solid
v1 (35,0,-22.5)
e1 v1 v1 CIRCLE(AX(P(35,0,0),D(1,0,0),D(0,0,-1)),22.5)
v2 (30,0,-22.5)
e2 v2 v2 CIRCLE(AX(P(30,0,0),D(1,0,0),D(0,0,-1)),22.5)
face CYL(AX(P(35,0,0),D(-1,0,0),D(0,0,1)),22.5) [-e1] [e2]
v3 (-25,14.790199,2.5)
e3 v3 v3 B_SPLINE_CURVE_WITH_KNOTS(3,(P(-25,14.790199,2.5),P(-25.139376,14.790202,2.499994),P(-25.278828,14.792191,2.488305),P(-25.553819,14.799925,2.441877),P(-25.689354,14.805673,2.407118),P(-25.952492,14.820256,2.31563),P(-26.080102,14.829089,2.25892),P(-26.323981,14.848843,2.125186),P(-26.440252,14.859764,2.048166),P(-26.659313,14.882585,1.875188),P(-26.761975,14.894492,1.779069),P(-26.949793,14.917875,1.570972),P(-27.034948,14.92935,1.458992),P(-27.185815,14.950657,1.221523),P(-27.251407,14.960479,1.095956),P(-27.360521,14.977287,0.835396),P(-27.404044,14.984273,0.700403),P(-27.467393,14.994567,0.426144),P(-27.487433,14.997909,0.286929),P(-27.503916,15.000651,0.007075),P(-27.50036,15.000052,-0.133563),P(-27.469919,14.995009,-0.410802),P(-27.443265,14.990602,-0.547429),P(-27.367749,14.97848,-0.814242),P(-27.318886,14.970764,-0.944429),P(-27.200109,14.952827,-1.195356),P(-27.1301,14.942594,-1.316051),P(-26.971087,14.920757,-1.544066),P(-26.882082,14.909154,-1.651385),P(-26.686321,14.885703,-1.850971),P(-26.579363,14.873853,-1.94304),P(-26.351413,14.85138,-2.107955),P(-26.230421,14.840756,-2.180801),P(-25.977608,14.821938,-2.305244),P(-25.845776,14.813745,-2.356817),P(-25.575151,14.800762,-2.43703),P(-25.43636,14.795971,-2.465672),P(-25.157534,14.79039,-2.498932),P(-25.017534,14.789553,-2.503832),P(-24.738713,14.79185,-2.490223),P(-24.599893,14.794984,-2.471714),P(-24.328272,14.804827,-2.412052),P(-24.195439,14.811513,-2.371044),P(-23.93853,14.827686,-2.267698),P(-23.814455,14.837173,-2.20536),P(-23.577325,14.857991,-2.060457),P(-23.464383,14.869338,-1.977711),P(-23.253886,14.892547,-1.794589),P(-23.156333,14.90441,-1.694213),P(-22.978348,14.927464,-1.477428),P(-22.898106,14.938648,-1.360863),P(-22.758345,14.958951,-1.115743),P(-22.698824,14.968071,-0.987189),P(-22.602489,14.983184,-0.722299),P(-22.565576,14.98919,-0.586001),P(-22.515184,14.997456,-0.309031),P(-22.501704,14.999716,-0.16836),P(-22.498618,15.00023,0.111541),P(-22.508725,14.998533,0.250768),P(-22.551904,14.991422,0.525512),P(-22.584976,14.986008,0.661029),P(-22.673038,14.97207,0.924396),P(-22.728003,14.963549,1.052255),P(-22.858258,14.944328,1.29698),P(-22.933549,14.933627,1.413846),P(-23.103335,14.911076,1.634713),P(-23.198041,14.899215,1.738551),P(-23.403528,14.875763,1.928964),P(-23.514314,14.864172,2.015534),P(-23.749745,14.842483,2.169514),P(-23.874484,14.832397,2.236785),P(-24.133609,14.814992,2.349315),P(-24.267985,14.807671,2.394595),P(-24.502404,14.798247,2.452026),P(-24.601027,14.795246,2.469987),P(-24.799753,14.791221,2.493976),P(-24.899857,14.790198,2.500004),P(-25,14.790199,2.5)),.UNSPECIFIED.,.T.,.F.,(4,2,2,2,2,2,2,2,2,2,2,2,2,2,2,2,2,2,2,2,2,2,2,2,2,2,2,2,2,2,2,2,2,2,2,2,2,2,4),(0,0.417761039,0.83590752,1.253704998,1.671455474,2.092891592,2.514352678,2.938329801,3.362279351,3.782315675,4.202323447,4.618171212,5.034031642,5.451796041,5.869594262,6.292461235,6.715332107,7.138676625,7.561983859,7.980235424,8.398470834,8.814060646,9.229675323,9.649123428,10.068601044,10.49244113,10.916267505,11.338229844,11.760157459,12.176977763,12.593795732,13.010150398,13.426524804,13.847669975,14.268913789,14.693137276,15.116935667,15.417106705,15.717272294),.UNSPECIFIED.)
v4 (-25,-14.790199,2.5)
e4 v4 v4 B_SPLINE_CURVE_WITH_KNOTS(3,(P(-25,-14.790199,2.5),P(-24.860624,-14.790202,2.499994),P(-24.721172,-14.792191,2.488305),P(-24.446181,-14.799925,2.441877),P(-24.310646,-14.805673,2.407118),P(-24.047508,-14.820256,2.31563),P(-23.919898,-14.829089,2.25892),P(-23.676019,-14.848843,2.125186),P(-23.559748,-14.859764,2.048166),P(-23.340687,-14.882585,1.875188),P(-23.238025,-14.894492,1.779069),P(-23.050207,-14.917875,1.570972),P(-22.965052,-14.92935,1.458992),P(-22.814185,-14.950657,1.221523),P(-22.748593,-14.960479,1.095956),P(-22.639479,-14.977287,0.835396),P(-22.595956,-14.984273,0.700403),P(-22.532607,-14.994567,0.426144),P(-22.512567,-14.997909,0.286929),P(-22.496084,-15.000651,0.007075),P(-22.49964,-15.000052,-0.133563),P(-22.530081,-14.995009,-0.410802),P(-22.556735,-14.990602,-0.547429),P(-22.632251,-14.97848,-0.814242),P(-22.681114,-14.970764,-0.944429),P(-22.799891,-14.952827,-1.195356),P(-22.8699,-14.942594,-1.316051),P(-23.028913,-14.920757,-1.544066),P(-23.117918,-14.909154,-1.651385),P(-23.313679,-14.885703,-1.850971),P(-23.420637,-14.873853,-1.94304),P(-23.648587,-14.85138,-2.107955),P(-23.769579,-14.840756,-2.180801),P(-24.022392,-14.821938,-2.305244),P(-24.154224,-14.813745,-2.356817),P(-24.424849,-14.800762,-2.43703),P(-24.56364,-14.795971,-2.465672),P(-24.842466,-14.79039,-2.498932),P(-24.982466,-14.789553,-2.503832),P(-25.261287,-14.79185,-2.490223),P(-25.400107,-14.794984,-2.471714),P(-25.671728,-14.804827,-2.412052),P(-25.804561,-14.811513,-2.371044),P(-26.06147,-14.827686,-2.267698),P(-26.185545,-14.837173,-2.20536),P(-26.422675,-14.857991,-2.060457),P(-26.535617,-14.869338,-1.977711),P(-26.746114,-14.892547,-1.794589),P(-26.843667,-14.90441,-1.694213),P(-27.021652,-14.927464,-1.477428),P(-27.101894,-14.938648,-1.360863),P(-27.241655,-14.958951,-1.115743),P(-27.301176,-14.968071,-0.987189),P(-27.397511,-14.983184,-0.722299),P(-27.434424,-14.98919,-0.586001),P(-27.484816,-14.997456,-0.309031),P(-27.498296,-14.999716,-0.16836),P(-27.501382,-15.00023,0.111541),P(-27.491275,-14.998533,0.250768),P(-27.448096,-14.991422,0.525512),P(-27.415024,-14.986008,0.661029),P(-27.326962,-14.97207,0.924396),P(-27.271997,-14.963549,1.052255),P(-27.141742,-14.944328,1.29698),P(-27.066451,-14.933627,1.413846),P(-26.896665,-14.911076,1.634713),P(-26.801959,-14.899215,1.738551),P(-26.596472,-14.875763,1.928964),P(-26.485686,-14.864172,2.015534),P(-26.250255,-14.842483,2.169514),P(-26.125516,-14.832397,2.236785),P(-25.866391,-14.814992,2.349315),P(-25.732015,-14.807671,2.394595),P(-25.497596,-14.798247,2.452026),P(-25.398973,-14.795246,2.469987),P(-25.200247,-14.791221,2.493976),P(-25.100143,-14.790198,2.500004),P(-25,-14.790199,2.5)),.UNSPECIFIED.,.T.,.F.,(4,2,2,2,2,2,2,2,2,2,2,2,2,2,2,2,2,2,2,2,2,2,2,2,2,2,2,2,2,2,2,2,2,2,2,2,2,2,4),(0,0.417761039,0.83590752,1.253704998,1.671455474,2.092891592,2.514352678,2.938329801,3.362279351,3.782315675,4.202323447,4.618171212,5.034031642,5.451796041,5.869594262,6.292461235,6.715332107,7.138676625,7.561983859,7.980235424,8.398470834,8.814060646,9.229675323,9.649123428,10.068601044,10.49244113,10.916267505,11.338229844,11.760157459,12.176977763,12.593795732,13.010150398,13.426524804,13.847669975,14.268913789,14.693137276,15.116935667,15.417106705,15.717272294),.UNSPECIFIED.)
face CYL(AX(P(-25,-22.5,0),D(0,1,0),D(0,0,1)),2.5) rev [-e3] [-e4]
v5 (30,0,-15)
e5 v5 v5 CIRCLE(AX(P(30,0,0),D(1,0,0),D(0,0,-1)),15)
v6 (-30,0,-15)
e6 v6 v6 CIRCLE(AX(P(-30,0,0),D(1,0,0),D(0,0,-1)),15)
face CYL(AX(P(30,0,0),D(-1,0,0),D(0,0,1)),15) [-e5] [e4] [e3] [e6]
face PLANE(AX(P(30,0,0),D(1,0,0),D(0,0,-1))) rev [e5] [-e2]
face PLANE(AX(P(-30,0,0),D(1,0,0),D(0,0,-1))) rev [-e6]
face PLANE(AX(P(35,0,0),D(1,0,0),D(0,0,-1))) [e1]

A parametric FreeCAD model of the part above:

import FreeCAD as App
import Part
import Sketcher

V = App.Vector
Q = App.Units.Quantity

doc = App.newDocument("Part")
params = doc.addObject("Spreadsheet::Sheet", "Params")
for row, (alias, value) in enumerate([
    ("sketch1_diameter", "30 mm"),
    ("pad1_length", "60 mm"),
    ("sketch2_diameter", "45 mm"),
    ("pad2_length", "5 mm"),
    ("sketch3_diameter", "5 mm"),
], start=1):
    params.set(f"A{row}", alias)
    params.set(f"B{row}", "=" + value)
    params.setAlias(f"B{row}", alias)

body = doc.addObject("PartDesign::Body", "Body")

sketch1 = doc.addObject("Sketcher::SketchObject", "Sketch")
body.addObject(sketch1)
sketch1.AttachmentSupport = (doc.YZ_Plane, [""])
sketch1.MapMode = "FlatFace"
sketch1.addGeometry(Part.Circle(V(0, 0, 0), V(0, 0, 1), 15), False)
sketch1.addConstraint([
    Sketcher.Constraint("Coincident", 0, 3, -1, 1),
    Sketcher.Constraint("Diameter", 0, Q("30 mm")),
])
sketch1.setExpression("Constraints[1]", "Params.sketch1_diameter")
pad1 = doc.addObject("PartDesign::Pad", "Pad")
body.addObject(pad1)
pad1.Profile = sketch1
pad1.setExpression("Length", "Params.pad1_length")
pad1.Midplane = True

sketch2 = doc.addObject("Sketcher::SketchObject", "Sketch001")
body.addObject(sketch2)
sketch2.AttachmentSupport = (doc.YZ_Plane, [""])
sketch2.MapMode = "FlatFace"
sketch2.AttachmentOffset = App.Placement(V(0, 0, 30), App.Rotation())
sketch2.addGeometry(Part.Circle(V(0, 0, 0), V(0, 0, 1), 22), False)
sketch2.addConstraint([
    Sketcher.Constraint("Coincident", 0, 3, -1, 1),
    Sketcher.Constraint("Diameter", 0, Q("45 mm")),
])
sketch2.setExpression("Constraints[1]", "Params.sketch2_diameter")
pad2 = doc.addObject("PartDesign::Pad", "Pad001")
body.addObject(pad2)
pad2.Profile = sketch2
pad2.setExpression("Length", "Params.pad2_length")

sketch3 = doc.addObject("Sketcher::SketchObject", "Sketch002")
body.addObject(sketch3)
sketch3.AttachmentSupport = (doc.XZ_Plane, [""])
sketch3.MapMode = "FlatFace"
sketch3.addGeometry(Part.Circle(V(-25, 0, 0), V(0, 0, 1), 2.5), False)
sketch3.addConstraint([
    Sketcher.Constraint("PointOnObject", 0, 3, -1),
    Sketcher.Constraint("Diameter", 0, Q("5 mm")),
    Sketcher.Constraint("DistanceX", 0, 3, -1, 1, Q("25 mm")),
])
sketch3.setExpression("Constraints[1]", "Params.sketch3_diameter")
pocket1 = doc.addObject("PartDesign::Pocket", "Pocket")
body.addObject(pocket1)
pocket1.Profile = sketch3
pocket1.Type = "ThroughAll"
pocket1.Midplane = True

doc.recompute()
